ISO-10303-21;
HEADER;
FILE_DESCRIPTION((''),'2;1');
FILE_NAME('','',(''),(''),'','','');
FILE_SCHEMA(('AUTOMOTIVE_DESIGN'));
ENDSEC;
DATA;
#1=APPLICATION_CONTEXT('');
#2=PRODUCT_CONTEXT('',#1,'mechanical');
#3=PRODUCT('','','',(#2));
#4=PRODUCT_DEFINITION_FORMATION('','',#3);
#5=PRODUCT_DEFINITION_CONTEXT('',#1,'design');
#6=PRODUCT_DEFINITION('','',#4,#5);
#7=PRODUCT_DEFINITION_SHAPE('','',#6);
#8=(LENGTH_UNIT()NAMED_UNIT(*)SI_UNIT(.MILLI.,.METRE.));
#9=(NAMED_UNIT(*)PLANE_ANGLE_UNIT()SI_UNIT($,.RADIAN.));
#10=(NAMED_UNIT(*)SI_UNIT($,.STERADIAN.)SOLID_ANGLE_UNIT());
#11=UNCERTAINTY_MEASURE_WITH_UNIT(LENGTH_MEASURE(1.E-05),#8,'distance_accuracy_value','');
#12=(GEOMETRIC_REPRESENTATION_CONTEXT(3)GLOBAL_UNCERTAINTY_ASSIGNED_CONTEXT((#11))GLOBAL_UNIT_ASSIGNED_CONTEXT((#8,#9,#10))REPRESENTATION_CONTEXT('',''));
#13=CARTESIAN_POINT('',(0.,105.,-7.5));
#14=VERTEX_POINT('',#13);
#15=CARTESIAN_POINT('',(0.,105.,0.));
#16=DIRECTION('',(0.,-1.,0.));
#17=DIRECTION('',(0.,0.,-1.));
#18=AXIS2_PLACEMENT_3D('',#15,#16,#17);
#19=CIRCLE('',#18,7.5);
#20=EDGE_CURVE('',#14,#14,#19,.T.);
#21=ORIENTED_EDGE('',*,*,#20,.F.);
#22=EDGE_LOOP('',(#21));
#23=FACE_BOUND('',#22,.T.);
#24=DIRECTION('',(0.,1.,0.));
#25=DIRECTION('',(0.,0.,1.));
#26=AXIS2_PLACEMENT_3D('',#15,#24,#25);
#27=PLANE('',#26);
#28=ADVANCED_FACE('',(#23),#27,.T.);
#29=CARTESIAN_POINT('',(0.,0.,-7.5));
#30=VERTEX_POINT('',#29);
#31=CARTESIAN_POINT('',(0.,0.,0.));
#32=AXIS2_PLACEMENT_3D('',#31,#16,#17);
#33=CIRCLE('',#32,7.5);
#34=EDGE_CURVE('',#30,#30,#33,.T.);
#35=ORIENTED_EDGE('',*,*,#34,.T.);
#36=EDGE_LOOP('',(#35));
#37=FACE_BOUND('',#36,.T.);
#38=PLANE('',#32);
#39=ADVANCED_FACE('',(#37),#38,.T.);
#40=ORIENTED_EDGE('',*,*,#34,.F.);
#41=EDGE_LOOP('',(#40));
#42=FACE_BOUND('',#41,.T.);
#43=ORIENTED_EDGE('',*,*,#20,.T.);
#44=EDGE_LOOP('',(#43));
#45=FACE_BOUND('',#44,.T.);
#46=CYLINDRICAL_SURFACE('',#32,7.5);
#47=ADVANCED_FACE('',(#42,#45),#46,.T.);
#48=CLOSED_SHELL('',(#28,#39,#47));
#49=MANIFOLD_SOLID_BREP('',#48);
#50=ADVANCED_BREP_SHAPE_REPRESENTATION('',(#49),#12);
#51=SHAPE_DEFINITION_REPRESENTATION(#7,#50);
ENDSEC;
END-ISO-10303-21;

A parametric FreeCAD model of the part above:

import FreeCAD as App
import Part
import Sketcher

V = App.Vector
Q = App.Units.Quantity

doc = App.newDocument("Part")
body = doc.addObject("PartDesign::Body", "Body")

# Sketch on XY plane
sketch1 = body.newObject("Sketcher::SketchObject", "Sketch")
sketch1.AttachmentSupport = (doc.getObject("XY_Plane"), [""])
sketch1.MapMode = "FlatFace"
sketch1.addGeometry([
    Part.LineSegment(V(0, 105, 0), V(0, 0, 0)),
    Part.LineSegment(V(0, 0, 0), V(8, 0, 0)),
    Part.LineSegment(V(8, 0, 0), V(8, 105, 0)),
    Part.LineSegment(V(8, 105, 0), V(0, 105, 0)),
], False)
sketch1.addConstraint([
    Sketcher.Constraint("Coincident", 0, 2, 1, 1),
    Sketcher.Constraint("Coincident", 1, 2, 2, 1),
    Sketcher.Constraint("Coincident", 2, 2, 3, 1),
    Sketcher.Constraint("Coincident", 3, 2, 0, 1),
    Sketcher.Constraint("Vertical", 0),
    Sketcher.Constraint("Horizontal", 1),
    Sketcher.Constraint("Vertical", 2),
    Sketcher.Constraint("Horizontal", 3),
    Sketcher.Constraint("Coincident", 0, 2, -1, 1),
    Sketcher.Constraint("DistanceY", 0, 2, 0, 1, Q("105 mm")),
    Sketcher.Constraint("DistanceX", 1, 1, 1, 2, Q("7.5 mm")),
])
revolution = body.newObject("PartDesign::Revolution", "Revolution")
revolution.Profile = sketch1
revolution.ReferenceAxis = (sketch1, ["V_Axis"])
revolution.Angle = 360

doc.recompute()
